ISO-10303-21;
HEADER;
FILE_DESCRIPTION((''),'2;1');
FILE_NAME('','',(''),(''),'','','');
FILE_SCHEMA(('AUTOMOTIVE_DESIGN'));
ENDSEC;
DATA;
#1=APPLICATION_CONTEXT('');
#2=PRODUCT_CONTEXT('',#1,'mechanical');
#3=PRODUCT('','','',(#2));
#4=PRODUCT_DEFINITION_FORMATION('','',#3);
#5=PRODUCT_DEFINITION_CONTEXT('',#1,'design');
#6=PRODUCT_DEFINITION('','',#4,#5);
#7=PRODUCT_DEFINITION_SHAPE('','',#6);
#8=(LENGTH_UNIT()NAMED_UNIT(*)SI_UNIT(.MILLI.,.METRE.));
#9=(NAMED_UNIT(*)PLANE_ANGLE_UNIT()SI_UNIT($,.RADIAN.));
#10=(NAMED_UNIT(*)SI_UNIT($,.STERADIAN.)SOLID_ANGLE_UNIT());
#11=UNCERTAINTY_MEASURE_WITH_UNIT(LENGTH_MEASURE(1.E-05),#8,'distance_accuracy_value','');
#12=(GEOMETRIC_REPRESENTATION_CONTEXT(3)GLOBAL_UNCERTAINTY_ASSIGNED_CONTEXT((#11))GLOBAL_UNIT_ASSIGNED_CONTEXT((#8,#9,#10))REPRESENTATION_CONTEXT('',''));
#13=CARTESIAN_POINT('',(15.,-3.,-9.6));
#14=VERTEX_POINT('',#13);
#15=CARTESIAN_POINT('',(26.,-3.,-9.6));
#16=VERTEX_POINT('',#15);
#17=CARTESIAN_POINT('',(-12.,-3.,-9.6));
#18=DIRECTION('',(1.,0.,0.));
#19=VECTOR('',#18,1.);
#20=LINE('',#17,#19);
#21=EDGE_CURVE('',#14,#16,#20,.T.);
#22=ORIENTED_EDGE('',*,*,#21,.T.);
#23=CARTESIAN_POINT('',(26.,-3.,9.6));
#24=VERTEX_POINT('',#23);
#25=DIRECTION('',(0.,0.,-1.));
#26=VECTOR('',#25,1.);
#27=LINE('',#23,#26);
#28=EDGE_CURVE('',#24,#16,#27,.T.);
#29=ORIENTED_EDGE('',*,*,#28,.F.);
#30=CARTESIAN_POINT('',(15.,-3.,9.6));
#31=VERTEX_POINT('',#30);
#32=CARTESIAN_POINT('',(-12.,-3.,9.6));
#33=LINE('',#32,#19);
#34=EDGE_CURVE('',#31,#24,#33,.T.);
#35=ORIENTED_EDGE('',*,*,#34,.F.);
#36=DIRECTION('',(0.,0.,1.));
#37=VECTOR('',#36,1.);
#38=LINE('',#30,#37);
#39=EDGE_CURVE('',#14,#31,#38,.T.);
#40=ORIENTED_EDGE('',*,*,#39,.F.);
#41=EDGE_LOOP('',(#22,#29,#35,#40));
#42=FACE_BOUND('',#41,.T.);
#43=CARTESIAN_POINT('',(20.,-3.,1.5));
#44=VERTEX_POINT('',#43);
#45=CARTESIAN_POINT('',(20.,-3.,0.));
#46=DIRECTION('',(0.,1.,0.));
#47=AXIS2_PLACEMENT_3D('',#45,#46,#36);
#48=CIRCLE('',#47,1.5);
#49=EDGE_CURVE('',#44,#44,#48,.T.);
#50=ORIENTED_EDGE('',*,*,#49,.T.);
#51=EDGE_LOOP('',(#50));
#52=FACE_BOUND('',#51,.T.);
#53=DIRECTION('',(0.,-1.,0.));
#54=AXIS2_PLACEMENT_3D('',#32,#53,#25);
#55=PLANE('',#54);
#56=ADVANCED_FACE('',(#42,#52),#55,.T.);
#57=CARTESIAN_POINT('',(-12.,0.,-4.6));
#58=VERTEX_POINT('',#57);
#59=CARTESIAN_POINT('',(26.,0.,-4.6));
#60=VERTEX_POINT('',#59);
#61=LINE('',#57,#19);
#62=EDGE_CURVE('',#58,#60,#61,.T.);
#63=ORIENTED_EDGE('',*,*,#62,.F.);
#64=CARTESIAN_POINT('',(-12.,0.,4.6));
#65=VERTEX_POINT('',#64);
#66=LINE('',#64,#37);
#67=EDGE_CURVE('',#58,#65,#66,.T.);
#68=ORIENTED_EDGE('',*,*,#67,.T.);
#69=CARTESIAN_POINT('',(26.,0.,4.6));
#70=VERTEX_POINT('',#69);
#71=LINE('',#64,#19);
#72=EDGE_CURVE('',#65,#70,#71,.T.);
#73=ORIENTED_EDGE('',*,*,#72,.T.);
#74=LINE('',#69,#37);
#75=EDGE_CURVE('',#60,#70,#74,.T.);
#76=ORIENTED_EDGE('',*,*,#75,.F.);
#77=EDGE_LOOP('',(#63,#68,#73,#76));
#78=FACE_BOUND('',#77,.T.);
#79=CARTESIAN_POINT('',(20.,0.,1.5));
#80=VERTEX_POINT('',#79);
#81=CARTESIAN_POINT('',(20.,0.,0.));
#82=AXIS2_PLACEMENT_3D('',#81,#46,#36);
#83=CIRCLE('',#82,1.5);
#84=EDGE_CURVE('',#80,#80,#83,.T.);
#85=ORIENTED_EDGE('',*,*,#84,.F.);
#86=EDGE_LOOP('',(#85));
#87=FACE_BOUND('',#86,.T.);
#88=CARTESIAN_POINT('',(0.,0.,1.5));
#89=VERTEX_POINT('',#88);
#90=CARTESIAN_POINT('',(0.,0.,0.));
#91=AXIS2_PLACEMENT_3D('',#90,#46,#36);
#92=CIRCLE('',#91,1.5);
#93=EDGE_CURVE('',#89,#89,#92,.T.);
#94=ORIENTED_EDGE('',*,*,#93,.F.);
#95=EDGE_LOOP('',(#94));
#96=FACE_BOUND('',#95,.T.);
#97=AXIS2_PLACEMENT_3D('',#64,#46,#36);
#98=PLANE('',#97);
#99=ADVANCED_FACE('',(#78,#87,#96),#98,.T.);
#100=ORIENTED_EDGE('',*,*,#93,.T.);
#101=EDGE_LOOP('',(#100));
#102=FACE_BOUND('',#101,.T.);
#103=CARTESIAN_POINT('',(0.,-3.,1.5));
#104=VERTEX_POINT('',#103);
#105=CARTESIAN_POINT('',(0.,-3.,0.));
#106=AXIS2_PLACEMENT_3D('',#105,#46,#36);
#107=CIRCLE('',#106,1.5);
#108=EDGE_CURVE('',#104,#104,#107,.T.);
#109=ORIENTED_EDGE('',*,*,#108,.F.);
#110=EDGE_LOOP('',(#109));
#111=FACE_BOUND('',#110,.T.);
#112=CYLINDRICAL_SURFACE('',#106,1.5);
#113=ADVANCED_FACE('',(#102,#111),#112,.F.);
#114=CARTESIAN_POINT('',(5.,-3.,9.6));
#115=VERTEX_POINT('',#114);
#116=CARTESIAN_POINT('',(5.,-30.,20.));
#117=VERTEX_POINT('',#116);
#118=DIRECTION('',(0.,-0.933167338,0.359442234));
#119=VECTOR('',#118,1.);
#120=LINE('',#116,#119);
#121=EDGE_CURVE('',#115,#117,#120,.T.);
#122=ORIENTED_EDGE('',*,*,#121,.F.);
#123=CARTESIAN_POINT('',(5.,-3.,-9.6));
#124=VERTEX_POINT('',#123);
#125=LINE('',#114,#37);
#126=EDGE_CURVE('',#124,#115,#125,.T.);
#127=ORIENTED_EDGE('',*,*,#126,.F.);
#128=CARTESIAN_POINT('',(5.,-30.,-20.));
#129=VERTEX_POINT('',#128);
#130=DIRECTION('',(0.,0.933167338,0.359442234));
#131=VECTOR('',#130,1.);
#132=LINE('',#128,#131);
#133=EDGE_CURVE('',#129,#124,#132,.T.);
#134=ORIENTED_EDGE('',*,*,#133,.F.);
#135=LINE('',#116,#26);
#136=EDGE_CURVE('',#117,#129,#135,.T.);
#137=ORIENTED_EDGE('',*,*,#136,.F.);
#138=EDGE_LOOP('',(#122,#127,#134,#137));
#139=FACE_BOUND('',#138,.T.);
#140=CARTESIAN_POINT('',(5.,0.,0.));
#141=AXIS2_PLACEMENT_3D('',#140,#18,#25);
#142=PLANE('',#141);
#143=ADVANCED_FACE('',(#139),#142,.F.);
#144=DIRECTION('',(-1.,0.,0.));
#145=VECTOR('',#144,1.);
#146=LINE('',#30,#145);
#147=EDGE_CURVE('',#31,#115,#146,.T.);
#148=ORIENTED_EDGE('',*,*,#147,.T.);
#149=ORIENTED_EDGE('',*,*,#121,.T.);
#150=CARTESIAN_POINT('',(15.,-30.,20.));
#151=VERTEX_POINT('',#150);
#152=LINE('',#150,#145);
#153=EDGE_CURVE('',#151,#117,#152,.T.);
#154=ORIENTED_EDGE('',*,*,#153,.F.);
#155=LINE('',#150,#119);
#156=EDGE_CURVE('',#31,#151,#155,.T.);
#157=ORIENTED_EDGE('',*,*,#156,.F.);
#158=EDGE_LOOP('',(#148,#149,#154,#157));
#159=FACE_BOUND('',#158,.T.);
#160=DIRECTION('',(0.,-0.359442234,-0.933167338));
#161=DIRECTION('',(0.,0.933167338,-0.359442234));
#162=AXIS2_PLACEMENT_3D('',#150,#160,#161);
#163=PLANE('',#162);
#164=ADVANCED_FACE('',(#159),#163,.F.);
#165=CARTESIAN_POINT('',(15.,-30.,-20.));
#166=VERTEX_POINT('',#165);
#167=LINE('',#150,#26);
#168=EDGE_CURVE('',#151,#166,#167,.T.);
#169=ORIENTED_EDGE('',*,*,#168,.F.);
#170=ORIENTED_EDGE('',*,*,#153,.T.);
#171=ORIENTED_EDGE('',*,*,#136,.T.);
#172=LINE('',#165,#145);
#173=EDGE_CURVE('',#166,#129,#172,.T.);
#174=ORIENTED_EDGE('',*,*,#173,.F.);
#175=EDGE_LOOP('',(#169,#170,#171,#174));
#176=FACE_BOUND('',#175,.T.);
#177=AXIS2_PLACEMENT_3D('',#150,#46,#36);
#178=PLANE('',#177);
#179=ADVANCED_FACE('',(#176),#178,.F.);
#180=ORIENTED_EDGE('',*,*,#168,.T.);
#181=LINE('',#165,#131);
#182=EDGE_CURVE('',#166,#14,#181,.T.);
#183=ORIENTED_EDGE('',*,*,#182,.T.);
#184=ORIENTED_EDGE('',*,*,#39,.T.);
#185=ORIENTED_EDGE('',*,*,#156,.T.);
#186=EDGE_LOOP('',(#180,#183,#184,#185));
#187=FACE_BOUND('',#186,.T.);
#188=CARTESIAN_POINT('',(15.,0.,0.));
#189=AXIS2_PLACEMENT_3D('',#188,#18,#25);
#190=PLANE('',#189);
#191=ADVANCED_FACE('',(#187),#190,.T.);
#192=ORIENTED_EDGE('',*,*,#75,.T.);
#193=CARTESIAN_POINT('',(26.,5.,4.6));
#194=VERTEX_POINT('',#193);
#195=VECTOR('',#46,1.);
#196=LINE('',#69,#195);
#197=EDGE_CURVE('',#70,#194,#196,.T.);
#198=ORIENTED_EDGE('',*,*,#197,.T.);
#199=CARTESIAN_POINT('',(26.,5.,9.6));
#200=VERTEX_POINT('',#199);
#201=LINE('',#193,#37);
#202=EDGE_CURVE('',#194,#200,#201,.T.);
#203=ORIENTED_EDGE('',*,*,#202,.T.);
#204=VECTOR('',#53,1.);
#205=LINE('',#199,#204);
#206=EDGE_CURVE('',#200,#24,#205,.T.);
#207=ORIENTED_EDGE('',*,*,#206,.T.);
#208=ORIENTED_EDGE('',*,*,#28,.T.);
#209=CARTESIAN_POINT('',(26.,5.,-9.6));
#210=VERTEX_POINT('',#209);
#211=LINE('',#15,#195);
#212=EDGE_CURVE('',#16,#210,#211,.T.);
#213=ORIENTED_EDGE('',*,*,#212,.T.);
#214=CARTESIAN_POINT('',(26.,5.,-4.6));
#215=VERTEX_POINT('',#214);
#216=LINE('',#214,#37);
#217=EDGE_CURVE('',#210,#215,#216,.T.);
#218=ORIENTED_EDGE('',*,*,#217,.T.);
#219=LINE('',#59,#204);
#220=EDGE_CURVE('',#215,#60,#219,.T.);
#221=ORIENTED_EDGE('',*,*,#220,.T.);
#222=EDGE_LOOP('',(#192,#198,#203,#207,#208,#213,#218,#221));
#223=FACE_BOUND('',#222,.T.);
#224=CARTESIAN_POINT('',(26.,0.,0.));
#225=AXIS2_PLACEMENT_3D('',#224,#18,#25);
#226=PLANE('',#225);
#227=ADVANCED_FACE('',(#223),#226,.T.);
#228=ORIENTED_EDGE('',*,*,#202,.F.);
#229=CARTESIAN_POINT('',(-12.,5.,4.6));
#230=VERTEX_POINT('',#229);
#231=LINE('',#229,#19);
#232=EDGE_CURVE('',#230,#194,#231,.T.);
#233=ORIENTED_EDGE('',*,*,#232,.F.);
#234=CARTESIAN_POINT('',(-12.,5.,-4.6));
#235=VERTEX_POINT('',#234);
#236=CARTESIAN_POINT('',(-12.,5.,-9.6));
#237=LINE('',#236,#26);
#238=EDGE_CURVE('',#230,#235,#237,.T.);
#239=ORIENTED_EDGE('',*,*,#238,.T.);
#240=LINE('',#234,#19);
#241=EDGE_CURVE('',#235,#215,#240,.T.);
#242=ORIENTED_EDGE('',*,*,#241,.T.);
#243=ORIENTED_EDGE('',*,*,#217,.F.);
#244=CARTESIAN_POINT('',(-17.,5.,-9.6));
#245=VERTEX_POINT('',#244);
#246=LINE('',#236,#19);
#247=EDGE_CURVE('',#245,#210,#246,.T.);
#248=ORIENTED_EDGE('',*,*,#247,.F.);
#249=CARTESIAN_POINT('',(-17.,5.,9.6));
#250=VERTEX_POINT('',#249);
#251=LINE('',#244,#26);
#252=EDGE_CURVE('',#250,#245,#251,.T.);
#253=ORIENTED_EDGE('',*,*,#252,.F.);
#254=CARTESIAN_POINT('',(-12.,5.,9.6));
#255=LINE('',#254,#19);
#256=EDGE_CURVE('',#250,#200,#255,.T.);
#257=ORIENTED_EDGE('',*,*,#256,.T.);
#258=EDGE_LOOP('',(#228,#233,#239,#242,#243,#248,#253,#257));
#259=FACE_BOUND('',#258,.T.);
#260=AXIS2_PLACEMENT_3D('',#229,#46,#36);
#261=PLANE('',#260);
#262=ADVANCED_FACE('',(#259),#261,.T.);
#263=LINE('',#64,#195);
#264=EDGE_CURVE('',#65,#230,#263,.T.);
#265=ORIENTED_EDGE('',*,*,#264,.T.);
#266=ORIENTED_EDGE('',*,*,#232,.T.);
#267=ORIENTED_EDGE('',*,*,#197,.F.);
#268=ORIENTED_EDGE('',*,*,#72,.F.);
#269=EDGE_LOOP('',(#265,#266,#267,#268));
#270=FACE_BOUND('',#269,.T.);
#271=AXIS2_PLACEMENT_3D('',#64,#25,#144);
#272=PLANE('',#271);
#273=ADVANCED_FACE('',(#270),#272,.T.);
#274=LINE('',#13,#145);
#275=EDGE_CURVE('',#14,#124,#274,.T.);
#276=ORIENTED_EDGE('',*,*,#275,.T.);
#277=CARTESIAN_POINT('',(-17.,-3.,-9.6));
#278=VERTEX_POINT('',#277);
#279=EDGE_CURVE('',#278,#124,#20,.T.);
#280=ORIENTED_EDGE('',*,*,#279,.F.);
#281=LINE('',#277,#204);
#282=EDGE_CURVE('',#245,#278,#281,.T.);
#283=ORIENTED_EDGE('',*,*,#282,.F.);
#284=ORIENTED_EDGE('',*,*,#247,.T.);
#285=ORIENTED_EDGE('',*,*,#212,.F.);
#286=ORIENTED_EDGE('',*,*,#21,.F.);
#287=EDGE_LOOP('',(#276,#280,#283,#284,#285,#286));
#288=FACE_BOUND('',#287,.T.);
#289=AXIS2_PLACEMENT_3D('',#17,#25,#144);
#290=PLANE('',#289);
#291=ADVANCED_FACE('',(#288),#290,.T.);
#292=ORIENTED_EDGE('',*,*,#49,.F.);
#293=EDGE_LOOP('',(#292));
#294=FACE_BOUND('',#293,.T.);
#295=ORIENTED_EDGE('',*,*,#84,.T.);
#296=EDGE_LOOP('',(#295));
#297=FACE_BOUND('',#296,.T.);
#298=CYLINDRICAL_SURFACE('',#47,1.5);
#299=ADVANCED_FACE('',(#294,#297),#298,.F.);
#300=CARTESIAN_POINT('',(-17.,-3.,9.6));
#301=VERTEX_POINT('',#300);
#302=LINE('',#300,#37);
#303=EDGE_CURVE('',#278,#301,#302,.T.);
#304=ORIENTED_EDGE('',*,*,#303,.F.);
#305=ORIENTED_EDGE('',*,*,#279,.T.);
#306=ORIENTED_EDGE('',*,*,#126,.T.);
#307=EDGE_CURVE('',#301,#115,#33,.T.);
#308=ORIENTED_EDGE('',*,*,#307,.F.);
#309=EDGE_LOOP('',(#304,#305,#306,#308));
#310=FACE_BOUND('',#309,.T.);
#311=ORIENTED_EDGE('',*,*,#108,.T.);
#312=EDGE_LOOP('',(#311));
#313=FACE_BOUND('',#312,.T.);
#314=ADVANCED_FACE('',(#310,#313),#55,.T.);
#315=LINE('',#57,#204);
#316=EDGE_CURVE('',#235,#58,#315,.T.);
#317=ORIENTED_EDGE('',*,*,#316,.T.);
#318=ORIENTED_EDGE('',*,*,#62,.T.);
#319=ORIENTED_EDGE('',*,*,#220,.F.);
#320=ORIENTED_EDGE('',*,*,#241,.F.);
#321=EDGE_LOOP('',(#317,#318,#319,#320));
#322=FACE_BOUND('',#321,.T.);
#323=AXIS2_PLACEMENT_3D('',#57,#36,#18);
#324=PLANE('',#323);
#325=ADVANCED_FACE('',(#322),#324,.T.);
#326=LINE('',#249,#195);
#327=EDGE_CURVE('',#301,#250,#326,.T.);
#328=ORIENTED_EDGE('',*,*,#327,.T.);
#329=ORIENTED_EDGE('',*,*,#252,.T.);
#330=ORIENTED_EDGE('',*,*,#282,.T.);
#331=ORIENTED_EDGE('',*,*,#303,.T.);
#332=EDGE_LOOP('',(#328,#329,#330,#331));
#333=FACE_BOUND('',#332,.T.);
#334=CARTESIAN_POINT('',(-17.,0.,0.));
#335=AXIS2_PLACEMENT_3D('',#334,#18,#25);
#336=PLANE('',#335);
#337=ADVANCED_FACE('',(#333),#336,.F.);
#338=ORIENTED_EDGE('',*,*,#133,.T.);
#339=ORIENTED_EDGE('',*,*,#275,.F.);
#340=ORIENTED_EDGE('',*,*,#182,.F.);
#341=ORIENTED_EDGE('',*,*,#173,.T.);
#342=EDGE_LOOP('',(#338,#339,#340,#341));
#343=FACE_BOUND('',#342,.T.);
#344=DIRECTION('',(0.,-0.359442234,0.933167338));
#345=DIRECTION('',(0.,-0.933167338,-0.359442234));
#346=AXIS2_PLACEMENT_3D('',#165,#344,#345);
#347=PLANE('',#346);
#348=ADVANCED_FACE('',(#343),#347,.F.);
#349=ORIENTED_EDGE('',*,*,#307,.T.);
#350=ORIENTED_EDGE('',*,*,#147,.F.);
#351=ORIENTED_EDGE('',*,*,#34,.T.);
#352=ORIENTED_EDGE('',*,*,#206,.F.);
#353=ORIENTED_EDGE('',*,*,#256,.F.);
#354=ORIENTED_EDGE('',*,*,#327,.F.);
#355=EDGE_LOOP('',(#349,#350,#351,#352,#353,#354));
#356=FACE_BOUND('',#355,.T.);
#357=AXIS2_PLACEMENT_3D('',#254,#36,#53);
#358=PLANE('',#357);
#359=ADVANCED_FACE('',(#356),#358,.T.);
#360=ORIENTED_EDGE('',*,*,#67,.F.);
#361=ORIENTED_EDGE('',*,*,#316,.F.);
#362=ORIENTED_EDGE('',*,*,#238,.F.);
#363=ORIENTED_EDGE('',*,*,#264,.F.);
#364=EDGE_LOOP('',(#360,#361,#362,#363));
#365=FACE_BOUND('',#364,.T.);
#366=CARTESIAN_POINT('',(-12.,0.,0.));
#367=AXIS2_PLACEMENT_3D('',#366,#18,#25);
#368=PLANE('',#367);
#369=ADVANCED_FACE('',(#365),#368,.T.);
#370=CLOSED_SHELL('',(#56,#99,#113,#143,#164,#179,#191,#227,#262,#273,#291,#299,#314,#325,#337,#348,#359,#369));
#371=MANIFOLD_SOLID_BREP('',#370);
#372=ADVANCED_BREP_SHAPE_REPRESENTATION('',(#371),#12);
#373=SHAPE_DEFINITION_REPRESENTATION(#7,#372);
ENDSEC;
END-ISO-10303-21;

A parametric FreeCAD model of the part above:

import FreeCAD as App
import Part
import Sketcher
Q = App.Units.Quantity


def add_polygon(sketch, points):
    """Adds a closed chain of lines whose ends are joined by coincident constraints."""
    first, n = sketch.GeometryCount, len(points)
    for a, b in zip(points, points[1:] + points[:1]):
        sketch.addGeometry(Part.LineSegment(App.Vector(*a, 0), App.Vector(*b, 0)), False)
    for i in range(n):
        sketch.addConstraint(Sketcher.Constraint("Coincident", first + i, 2, first + (i + 1) % n, 1))

doc = App.newDocument("Part")
body = doc.addObject("PartDesign::Body", "Body")

# Sketch on YZ plane
sketch1 = doc.addObject("Sketcher::SketchObject", "Sketch")
body.addObject(sketch1)
sketch1.AttachmentSupport = (doc.YZ_Plane, [""])
sketch1.MapMode = "FlatFace"
add_polygon(sketch1, [(0, 4.6), (5, 4.6), (5, 9.6), (-3, 9.6), (-3, -9.6), (5, -9.6), (5, -4.6), (0, -4.6)])  # lines 0-7
sketch1.addConstraint(Sketcher.Constraint("Horizontal", 0))
sketch1.addConstraint(Sketcher.Constraint("Vertical", 1))
sketch1.addConstraint(Sketcher.Constraint("Horizontal", 2))
sketch1.addConstraint(Sketcher.Constraint("Vertical", 3))
sketch1.addConstraint(Sketcher.Constraint("Horizontal", 4))
sketch1.addConstraint(Sketcher.Constraint("Vertical", 5))
sketch1.addConstraint(Sketcher.Constraint("Horizontal", 6))
sketch1.addConstraint(Sketcher.Constraint("Vertical", 7))
sketch1.addConstraint(Sketcher.Constraint("Symmetric", 6, 2, 7, 2, -1, 1))
sketch1.addConstraint(Sketcher.Constraint("Symmetric", 1, 2, 4, 2, -1))
sketch1.addConstraint(Sketcher.Constraint("Equal", 6, 1))
sketch1.addConstraint(Sketcher.Constraint("DistanceX", 0, 1, 0, 2, Q("5 mm")))
sketch1.addConstraint(Sketcher.Constraint("DistanceX", 2, 2, 2, 1, Q("8 mm")))
sketch1.addConstraint(Sketcher.Constraint("DistanceY", 3, 2, 3, 1, Q("19.2 mm")))
pad1 = doc.addObject("PartDesign::Pad", "Pad")
body.addObject(pad1)
pad1.Profile = sketch1
pad1.Type = "TwoLengths"
pad1.Length = 26
pad1.Length2 = 12

# Sketch on XZ plane
sketch2 = doc.addObject("Sketcher::SketchObject", "Sketch001")
body.addObject(sketch2)
sketch2.AttachmentSupport = (doc.XZ_Plane, [""])
sketch2.MapMode = "FlatFace"
sketch2.addGeometry(Part.Circle(App.Vector(0, 0, 0), App.Vector(0, 0, 1), 1.5), False)
sketch2.addGeometry(Part.Circle(App.Vector(20, 0, 0), App.Vector(0, 0, 1), 1.5), False)
sketch2.addConstraint(Sketcher.Constraint("Coincident", 0, 3, -1, 1))
sketch2.addConstraint(Sketcher.Constraint("Equal", 0, 1))
sketch2.addConstraint(Sketcher.Constraint("PointOnObject", 1, 3, -1))
sketch2.addConstraint(Sketcher.Constraint("Diameter", 0, Q("3 mm")))
sketch2.addConstraint(Sketcher.Constraint("DistanceX", -1, 1, 1, 3, Q("20 mm")))
pocket1 = doc.addObject("PartDesign::Pocket", "Pocket")
body.addObject(pocket1)
pocket1.Profile = sketch2
pocket1.Type = "ThroughAll"
pocket1.Midplane = True

# Sketch on YZ plane
sketch3 = doc.addObject("Sketcher::SketchObject", "Sketch002")
body.addObject(sketch3)
sketch3.AttachmentSupport = (doc.YZ_Plane, [""])
sketch3.MapMode = "FlatFace"
sketch3.AttachmentOffset = App.Placement(App.Vector(0, 0, 10), App.Rotation())
add_polygon(sketch3, [(-3, 9.6), (-30, 20), (-30, -20), (-3, -9.6)])  # lines 0-3
sketch3.addConstraint(Sketcher.Constraint("Vertical", 1))
sketch3.addConstraint(Sketcher.Constraint("Vertical", 3))
sketch3.addConstraint(Sketcher.Constraint("Equal", 0, 2))
sketch3.addConstraint(Sketcher.Constraint("DistanceY", 1, 2, 1, 1, Q("40 mm")))
sketch3.addConstraint(Sketcher.Constraint("DistanceY", 3, 1, 3, 2, Q("19.2 mm")))
sketch3.addConstraint(Sketcher.Constraint("DistanceX", 0, 2, -1, 1, Q("30 mm")))
sketch3.addConstraint(Sketcher.Constraint("DistanceY", -1, 1, 0, 2, Q("20 mm")))
sketch3.addConstraint(Sketcher.Constraint("DistanceX", 2, 2, -1, 1, Q("3 mm")))
pad2 = doc.addObject("PartDesign::Pad", "Pad001")
body.addObject(pad2)
pad2.Profile = sketch3
pad2.Length = 10
pad2.Midplane = True

# Sketch on YZ plane
sketch4 = doc.addObject("Sketcher::SketchObject", "Sketch003")
body.addObject(sketch4)
sketch4.AttachmentSupport = (doc.YZ_Plane, [""])
sketch4.MapMode = "FlatFace"
sketch4.AttachmentOffset = App.Placement(App.Vector(0, 0, -12), App.Rotation())
add_polygon(sketch4, [(5, -9.6), (-3, -9.6), (-3, 9.6), (5, 9.6)])  # lines 0-3
sketch4.addConstraint(Sketcher.Constraint("Horizontal", 0))
sketch4.addConstraint(Sketcher.Constraint("Vertical", 1))
sketch4.addConstraint(Sketcher.Constraint("Horizontal", 2))
sketch4.addConstraint(Sketcher.Constraint("Vertical", 3))
sketch4.addConstraint(Sketcher.Constraint("DistanceX", 0, 2, 0, 1, Q("8 mm")))
sketch4.addConstraint(Sketcher.Constraint("DistanceY", 1, 1, 1, 2, Q("19.2 mm")))
sketch4.addConstraint(Sketcher.Constraint("DistanceX", 0, 2, -1, 1, Q("3 mm")))
sketch4.addConstraint(Sketcher.Constraint("DistanceY", 0, 2, -1, 1, Q("9.6 mm")))
pad3 = doc.addObject("PartDesign::Pad", "Pad002")
body.addObject(pad3)
pad3.Profile = sketch4
pad3.Length = 5
pad3.Reversed = True

doc.recompute()
